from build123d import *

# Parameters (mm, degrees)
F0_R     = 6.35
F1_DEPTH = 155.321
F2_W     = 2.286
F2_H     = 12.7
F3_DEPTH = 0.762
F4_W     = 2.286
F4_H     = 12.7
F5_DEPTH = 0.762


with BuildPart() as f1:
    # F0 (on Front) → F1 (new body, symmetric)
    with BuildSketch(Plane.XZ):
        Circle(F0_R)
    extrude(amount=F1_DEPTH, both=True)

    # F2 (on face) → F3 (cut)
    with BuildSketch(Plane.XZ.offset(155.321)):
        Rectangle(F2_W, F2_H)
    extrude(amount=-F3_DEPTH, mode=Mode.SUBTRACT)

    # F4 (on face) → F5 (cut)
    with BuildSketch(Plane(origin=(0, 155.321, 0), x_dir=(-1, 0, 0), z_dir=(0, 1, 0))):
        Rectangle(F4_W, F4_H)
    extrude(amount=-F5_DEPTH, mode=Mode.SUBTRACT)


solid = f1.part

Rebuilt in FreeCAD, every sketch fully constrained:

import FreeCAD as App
import Part
import Sketcher
Q = App.Units.Quantity


def add_polygon(sketch, points):
    """Adds a closed chain of lines whose ends are joined by coincident constraints."""
    first, n = sketch.GeometryCount, len(points)
    for a, b in zip(points, points[1:] + points[:1]):
        sketch.addGeometry(Part.LineSegment(App.Vector(*a, 0), App.Vector(*b, 0)), False)
    for i in range(n):
        sketch.addConstraint(Sketcher.Constraint("Coincident", first + i, 2, first + (i + 1) % n, 1))

doc = App.newDocument("Part")
params = doc.addObject("Spreadsheet::Sheet", "Params")
for row, (alias, value) in enumerate([
    ("sketch1_diameter", "0.5 in"),
    ("pad1_length", "12.23 in"),
    ("sketch2_height", "0.5 in"),
    ("sketch2_width", "0.09 in"),
    ("pocket1_length", "0.03 in"),
    ("sketch3_height", "0.5 in"),
    ("sketch3_width", "0.09 in"),
    ("pocket2_length", "0.03 in"),
], start=1):
    params.set(f"A{row}", alias)
    params.set(f"B{row}", "=" + value)
    params.setAlias(f"B{row}", alias)

body = doc.addObject("PartDesign::Body", "Body")

# Sketch on XZ plane
sketch1 = doc.addObject("Sketcher::SketchObject", "Sketch")
body.addObject(sketch1)
sketch1.AttachmentSupport = (doc.XZ_Plane, [""])
sketch1.MapMode = "FlatFace"
sketch1.addGeometry(Part.Circle(App.Vector(0, 0, 0), App.Vector(0, 0, 1), 6), False)
sketch1.addConstraint([
    Sketcher.Constraint("Coincident", 0, 3, -1, 1),
    Sketcher.Constraint("Diameter", 0, Q("0.5 in")),
])
sketch1.setExpression("Constraints[1]", "Params.sketch1_diameter")
pad1 = doc.addObject("PartDesign::Pad", "Pad")
body.addObject(pad1)
pad1.Profile = sketch1
pad1.setExpression("Length", "Params.pad1_length")
pad1.Midplane = True

# Sketch on XZ plane
sketch2 = doc.addObject("Sketcher::SketchObject", "Sketch001")
body.addObject(sketch2)
sketch2.AttachmentSupport = (doc.XZ_Plane, [""])
sketch2.MapMode = "FlatFace"
sketch2.AttachmentOffset = App.Placement(App.Vector(0, 0, 6.115 * 25.4), App.Rotation())
add_polygon(sketch2, [(-1.1, 6.3), (-1.1, -6.3), (1.1, -6.3), (1.1, 6.3)])  # lines 0-3
sketch2.addConstraint([
    Sketcher.Constraint("Vertical", 0),
    Sketcher.Constraint("Horizontal", 1),
    Sketcher.Constraint("Vertical", 2),
    Sketcher.Constraint("Horizontal", 3),
    Sketcher.Constraint("Symmetric", 0, 2, 2, 2, -1, 1),
    Sketcher.Constraint("DistanceY", 0, 2, 0, 1, Q("0.5 in")),
    Sketcher.Constraint("DistanceX", 1, 1, 1, 2, Q("0.09 in")),
])
sketch2.setExpression("Constraints[9]", "Params.sketch2_height")
sketch2.setExpression("Constraints[10]", "Params.sketch2_width")
pocket1 = doc.addObject("PartDesign::Pocket", "Pocket")
body.addObject(pocket1)
pocket1.Profile = sketch2
pocket1.setExpression("Length", "Params.pocket1_length")

# Sketch on XZ plane
sketch3 = doc.addObject("Sketcher::SketchObject", "Sketch002")
body.addObject(sketch3)
sketch3.AttachmentSupport = (doc.XZ_Plane, [""])
sketch3.MapMode = "FlatFace"
sketch3.AttachmentOffset = App.Placement(App.Vector(0, 0, -6.115 * 25.4), App.Rotation())
add_polygon(sketch3, [(1.1, 6.3), (1.1, -6.3), (-1.1, -6.3), (-1.1, 6.3)])  # lines 0-3
sketch3.addConstraint([
    Sketcher.Constraint("Vertical", 0),
    Sketcher.Constraint("Horizontal", 1),
    Sketcher.Constraint("Vertical", 2),
    Sketcher.Constraint("Horizontal", 3),
    Sketcher.Constraint("Symmetric", 0, 2, 2, 2, -1, 1),
    Sketcher.Constraint("DistanceY", 0, 2, 0, 1, Q("0.5 in")),
    Sketcher.Constraint("DistanceX", 1, 2, 1, 1, Q("0.09 in")),
])
sketch3.setExpression("Constraints[9]", "Params.sketch3_height")
sketch3.setExpression("Constraints[10]", "Params.sketch3_width")
pocket2 = doc.addObject("PartDesign::Pocket", "Pocket001")
body.addObject(pocket2)
pocket2.Profile = sketch3
pocket2.setExpression("Length", "Params.pocket2_length")
pocket2.Reversed = True

doc.recompute()
